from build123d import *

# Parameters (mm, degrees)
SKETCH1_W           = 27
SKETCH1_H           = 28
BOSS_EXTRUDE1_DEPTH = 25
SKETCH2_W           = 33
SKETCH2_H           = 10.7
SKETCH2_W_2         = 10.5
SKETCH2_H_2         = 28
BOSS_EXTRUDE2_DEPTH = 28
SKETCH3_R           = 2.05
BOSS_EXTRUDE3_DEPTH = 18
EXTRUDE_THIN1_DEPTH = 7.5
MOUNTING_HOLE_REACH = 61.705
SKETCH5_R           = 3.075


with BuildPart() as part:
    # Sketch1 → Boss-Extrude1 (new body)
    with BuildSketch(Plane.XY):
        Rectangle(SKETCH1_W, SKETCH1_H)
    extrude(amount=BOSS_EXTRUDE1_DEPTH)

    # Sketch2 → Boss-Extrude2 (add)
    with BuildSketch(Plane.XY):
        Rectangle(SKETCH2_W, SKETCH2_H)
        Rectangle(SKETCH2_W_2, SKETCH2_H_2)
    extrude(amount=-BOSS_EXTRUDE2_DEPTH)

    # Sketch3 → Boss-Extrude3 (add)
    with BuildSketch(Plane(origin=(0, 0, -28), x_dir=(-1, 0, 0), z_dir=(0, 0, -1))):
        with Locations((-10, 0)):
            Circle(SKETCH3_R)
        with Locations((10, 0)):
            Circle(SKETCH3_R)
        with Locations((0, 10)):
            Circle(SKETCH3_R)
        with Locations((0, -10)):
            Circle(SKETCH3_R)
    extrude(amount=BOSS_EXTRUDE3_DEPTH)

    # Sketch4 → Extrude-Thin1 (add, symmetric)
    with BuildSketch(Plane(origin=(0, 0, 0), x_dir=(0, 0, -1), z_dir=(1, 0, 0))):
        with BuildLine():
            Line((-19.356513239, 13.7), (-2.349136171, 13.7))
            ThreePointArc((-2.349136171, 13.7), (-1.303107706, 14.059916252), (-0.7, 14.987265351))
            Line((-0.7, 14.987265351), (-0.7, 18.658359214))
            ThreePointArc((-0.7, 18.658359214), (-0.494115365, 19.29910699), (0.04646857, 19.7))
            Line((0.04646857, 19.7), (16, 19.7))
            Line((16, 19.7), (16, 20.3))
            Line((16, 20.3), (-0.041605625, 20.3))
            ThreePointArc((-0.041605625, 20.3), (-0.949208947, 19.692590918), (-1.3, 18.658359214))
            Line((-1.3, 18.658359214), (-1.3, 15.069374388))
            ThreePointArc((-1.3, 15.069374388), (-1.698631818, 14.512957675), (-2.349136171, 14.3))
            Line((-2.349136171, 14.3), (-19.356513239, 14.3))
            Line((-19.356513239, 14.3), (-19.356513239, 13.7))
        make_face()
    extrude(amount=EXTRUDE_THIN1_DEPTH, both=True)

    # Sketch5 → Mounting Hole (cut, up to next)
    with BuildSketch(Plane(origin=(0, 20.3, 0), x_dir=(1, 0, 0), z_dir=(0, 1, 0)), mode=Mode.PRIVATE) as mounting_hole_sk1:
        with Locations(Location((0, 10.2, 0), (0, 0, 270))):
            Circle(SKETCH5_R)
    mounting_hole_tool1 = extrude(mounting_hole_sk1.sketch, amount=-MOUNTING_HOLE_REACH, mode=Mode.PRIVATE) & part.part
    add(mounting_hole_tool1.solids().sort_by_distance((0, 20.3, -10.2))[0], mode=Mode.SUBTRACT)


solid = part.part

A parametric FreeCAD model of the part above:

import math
import FreeCAD as App
import Part
import Sketcher
from FreeCAD import Vector


def add_polygon(sketch, points):
    """Adds a closed chain of lines whose ends are joined by coincident constraints."""
    first, n = sketch.GeometryCount, len(points)
    for a, b in zip(points, points[1:] + points[:1]):
        sketch.addGeometry(Part.LineSegment(App.Vector(*a, 0), App.Vector(*b, 0)), False)
    for i in range(n):
        sketch.addConstraint(Sketcher.Constraint("Coincident", first + i, 2, first + (i + 1) % n, 1))

doc = App.newDocument("Part")
params = doc.addObject("Spreadsheet::Sheet", "Params")
for row, (alias, value) in enumerate([
    ("sketch1_width", "27 mm"),
    ("sketch1_height", "28 mm"),
    ("pad1_length", "25 mm"),
    ("sketch2_width", "10.5 mm"),
    ("sketch2_height", "10.7 mm"),
    ("pad2_length", "28 mm"),
    ("sketch3_diameter", "4.1 mm"),
    ("pad3_length", "18 mm"),
    ("sketch4_radius", "1.7 mm"),
    ("sketch4_radius2", "1.1 mm"),
    ("pad4_length", "15 mm"),
    ("sketch5_diameter", "6.15 mm"),
], start=1):
    params.set(f"A{row}", alias)
    params.set(f"B{row}", "=" + value)
    params.setAlias(f"B{row}", alias)

body = doc.addObject("PartDesign::Body", "Body")

# Sketch on XY plane
sketch1 = body.newObject("Sketcher::SketchObject", "Sketch")
sketch1.AttachmentSupport = (doc.getObject("XY_Plane"), [""])
sketch1.MapMode = "FlatFace"
add_polygon(sketch1, [(-14, 14), (-14, -14), (14, -14), (14, 14)])  # lines 0-3
sketch1.addConstraint(Sketcher.Constraint("Vertical", 0))
sketch1.addConstraint(Sketcher.Constraint("Horizontal", 1))
sketch1.addConstraint(Sketcher.Constraint("Vertical", 2))
sketch1.addConstraint(Sketcher.Constraint("Horizontal", 3))
sketch1.addConstraint(Sketcher.Constraint("Symmetric", 0, 2, 2, 2, -1, 1))
sketch1.addConstraint(Sketcher.Constraint("DistanceX", 1, 1, 1, 2, 27.0))
sketch1.addConstraint(Sketcher.Constraint("DistanceY", 0, 2, 0, 1, 28.0))
sketch1.setExpression("Constraints[9]", "Params.sketch1_width")
sketch1.setExpression("Constraints[10]", "Params.sketch1_height")
pad1 = body.newObject("PartDesign::Pad", "Pad")
pad1.Profile = sketch1
pad1.setExpression("Length", "Params.pad1_length")

# Sketch on XY plane
sketch2 = body.newObject("Sketcher::SketchObject", "Sketch001")
sketch2.AttachmentSupport = (doc.getObject("XY_Plane"), [""])
sketch2.MapMode = "FlatFace"
add_polygon(sketch2, [(-16, 5), (-16, -5), (-5, -5), (-5, -14), (5, -14), (5, -5), (16, -5), (16, 5), (5, 5), (5, 14), (-5, 14), (-5, 5)])  # lines 0-11
sketch2.addConstraint(Sketcher.Constraint("Vertical", 0))
sketch2.addConstraint(Sketcher.Constraint("Horizontal", 1))
sketch2.addConstraint(Sketcher.Constraint("Vertical", 2))
sketch2.addConstraint(Sketcher.Constraint("Horizontal", 3))
sketch2.addConstraint(Sketcher.Constraint("Vertical", 4))
sketch2.addConstraint(Sketcher.Constraint("Horizontal", 5))
sketch2.addConstraint(Sketcher.Constraint("Vertical", 6))
sketch2.addConstraint(Sketcher.Constraint("Horizontal", 7))
sketch2.addConstraint(Sketcher.Constraint("Vertical", 8))
sketch2.addConstraint(Sketcher.Constraint("Horizontal", 9))
sketch2.addConstraint(Sketcher.Constraint("Vertical", 10))
sketch2.addConstraint(Sketcher.Constraint("Horizontal", 11))
sketch2.addConstraint(Sketcher.Constraint("Symmetric", 0, 2, 6, 2, -1, 1))
sketch2.addConstraint(Sketcher.Constraint("Symmetric", 2, 2, 8, 2, -1, 1))
sketch2.addConstraint(Sketcher.Constraint("Symmetric", 4, 2, 10, 2, -1, 1))
sketch2.addConstraint(Sketcher.Constraint("Symmetric", 1, 2, 4, 2, -2))
sketch2.addConstraint(Sketcher.Constraint("DistanceX", 3, 1, 3, 2, 10.5))
sketch2.addConstraint(Sketcher.Constraint("DistanceY", 0, 2, 0, 1, 10.7))
sketch2.addConstraint(Sketcher.Constraint("DistanceY", 2, 2, -1, 1, 14.0))
sketch2.addConstraint(Sketcher.Constraint("DistanceX", 0, 2, 5, 2, 33.0))
sketch2.setExpression("Constraints[28]", "Params.sketch2_width")
sketch2.setExpression("Constraints[29]", "Params.sketch2_height")
pad2 = body.newObject("PartDesign::Pad", "Pad001")
pad2.Profile = sketch2
pad2.setExpression("Length", "Params.pad2_length")
pad2.Reversed = True

# Sketch on XY plane
sketch3 = body.newObject("Sketcher::SketchObject", "Sketch002")
sketch3.AttachmentSupport = (doc.getObject("XY_Plane"), [""])
sketch3.MapMode = "FlatFace"
sketch3.AttachmentOffset = App.Placement(Vector(0, 0, -28), App.Rotation())
sketch3.addGeometry(Part.Circle(Vector(10, 0, 0), Vector(0, 0, 1), 2), False)
sketch3.addGeometry(Part.Circle(Vector(-10, 0, 0), Vector(0, 0, 1), 2), False)
sketch3.addGeometry(Part.Circle(Vector(0, 10, 0), Vector(0, 0, 1), 2), False)
sketch3.addGeometry(Part.Circle(Vector(0, -10, 0), Vector(0, 0, 1), 2), False)
sketch3.addConstraint(Sketcher.Constraint("Equal", 0, 1))
sketch3.addConstraint(Sketcher.Constraint("Equal", 1, 2))
sketch3.addConstraint(Sketcher.Constraint("Equal", 2, 3))
sketch3.addConstraint(Sketcher.Constraint("Symmetric", 0, 3, 1, 3, -1, 1))
sketch3.addConstraint(Sketcher.Constraint("Symmetric", 2, 3, 3, 3, -1, 1))
sketch3.addConstraint(Sketcher.Constraint("PointOnObject", 0, 3, -1))
sketch3.addConstraint(Sketcher.Constraint("PointOnObject", 2, 3, -2))
sketch3.addConstraint(Sketcher.Constraint("Diameter", 0, 4.1))
sketch3.addConstraint(Sketcher.Constraint("DistanceX", -1, 1, 0, 3, 10.0))
sketch3.addConstraint(Sketcher.Constraint("DistanceY", -1, 1, 2, 3, 10.0))
sketch3.setExpression("Constraints[7]", "Params.sketch3_diameter")
pad3 = body.newObject("PartDesign::Pad", "Pad002")
pad3.Profile = sketch3
pad3.setExpression("Length", "Params.pad3_length")
pad3.Reversed = True

# Sketch on YZ plane
sketch4 = body.newObject("Sketcher::SketchObject", "Sketch003")
sketch4.AttachmentSupport = (doc.getObject("YZ_Plane"), [""])
sketch4.MapMode = "FlatFace"
sketch4.addGeometry(Part.LineSegment(Vector(13.7, 19.4, 0), Vector(13.7, 2.3, 0)), False)
sketch4.addGeometry(Part.ArcOfCircle(Part.Circle(Vector(15.4, 2.3, 0), Vector(0, 0, 1), 1.7), math.radians(180), math.radians(256)), False)
sketch4.addGeometry(Part.LineSegment(Vector(15, 0.7, 0), Vector(18.7, 0.7, 0)), False)
sketch4.addGeometry(Part.ArcOfCircle(Part.Circle(Vector(18.7, -0.4, 0), Vector(0, 0, 1), 1.1), math.radians(19), math.radians(90)), False)
sketch4.addGeometry(Part.LineSegment(Vector(19.7, 0, 0), Vector(19.7, -16, 0)), False)
sketch4.addGeometry(Part.LineSegment(Vector(19.7, -16, 0), Vector(20.3, -16, 0)), False)
sketch4.addGeometry(Part.LineSegment(Vector(20.3, -16, 0), Vector(20.3, 0, 0)), False)
sketch4.addGeometry(Part.ArcOfCircle(Part.Circle(Vector(18.7, -0.4, 0), Vector(0, 0, 1), 1.7), math.radians(15), math.radians(90)), False)
sketch4.addGeometry(Part.LineSegment(Vector(18.7, 1.3, 0), Vector(15.1, 1.3, 0)), False)
sketch4.addGeometry(Part.ArcOfCircle(Part.Circle(Vector(15.4, 2.3, 0), Vector(0, 0, 1), 1.1), math.radians(-180), math.radians(-107)), False)
sketch4.addGeometry(Part.LineSegment(Vector(14.3, 2.3, 0), Vector(14.3, 19.4, 0)), False)
sketch4.addGeometry(Part.LineSegment(Vector(14.3, 19.4, 0), Vector(13.7, 19.4, 0)), False)
sketch4.addConstraint(Sketcher.Constraint("Tangent", 0, 2, 1, 1))
sketch4.addConstraint(Sketcher.Constraint("Coincident", 1, 2, 2, 1))
sketch4.addConstraint(Sketcher.Constraint("Tangent", 2, 2, 3, 2))
sketch4.addConstraint(Sketcher.Constraint("Coincident", 3, 1, 4, 1))
sketch4.addConstraint(Sketcher.Constraint("Coincident", 4, 2, 5, 1))
sketch4.addConstraint(Sketcher.Constraint("Coincident", 5, 2, 6, 1))
sketch4.addConstraint(Sketcher.Constraint("Coincident", 6, 2, 7, 1))
sketch4.addConstraint(Sketcher.Constraint("Tangent", 7, 2, 8, 1))
sketch4.addConstraint(Sketcher.Constraint("Coincident", 8, 2, 9, 2))
sketch4.addConstraint(Sketcher.Constraint("Tangent", 9, 1, 10, 1))
sketch4.addConstraint(Sketcher.Constraint("Coincident", 10, 2, 11, 1))
sketch4.addConstraint(Sketcher.Constraint("Coincident", 11, 2, 0, 1))
sketch4.addConstraint(Sketcher.Constraint("Vertical", 0))
sketch4.addConstraint(Sketcher.Constraint("Horizontal", 2))
sketch4.addConstraint(Sketcher.Constraint("Vertical", 4))
sketch4.addConstraint(Sketcher.Constraint("Horizontal", 5))
sketch4.addConstraint(Sketcher.Constraint("Vertical", 6))
sketch4.addConstraint(Sketcher.Constraint("Horizontal", 8))
sketch4.addConstraint(Sketcher.Constraint("Vertical", 10))
sketch4.addConstraint(Sketcher.Constraint("Horizontal", 11))
sketch4.addConstraint(Sketcher.Constraint("Coincident", 7, 3, 3, 3))
sketch4.addConstraint(Sketcher.Constraint("Coincident", 9, 3, 1, 3))
sketch4.addConstraint(Sketcher.Constraint("Equal", 1, 7))
sketch4.addConstraint(Sketcher.Constraint("Equal", 3, 9))
sketch4.addConstraint(Sketcher.Constraint("Equal", 5, 11))
sketch4.addConstraint(Sketcher.Constraint("Radius", 1, 1.7))
sketch4.addConstraint(Sketcher.Constraint("Radius", 3, 1.1))
sketch4.addConstraint(Sketcher.Constraint("DistanceY", 4, 2, -1, 1, 16.0))
sketch4.addConstraint(Sketcher.Constraint("DistanceX", -1, 1, 1, 3, 15.4))
sketch4.addConstraint(Sketcher.Constraint("DistanceY", 3, 3, -1, 1, 0.4))
sketch4.addConstraint(Sketcher.Constraint("DistanceX", -1, 1, 3, 1, 19.7))
sketch4.addConstraint(Sketcher.Constraint("DistanceY", 4, 2, 4, 1, 15.953531))
sketch4.addConstraint(Sketcher.Constraint("DistanceX", 2, 1, 2, 2, 3.671094))
sketch4.addConstraint(Sketcher.Constraint("DistanceY", 0, 2, 0, 1, 17.007377))
sketch4.setExpression("Constraints[25]", "Params.sketch4_radius")
sketch4.setExpression("Constraints[26]", "Params.sketch4_radius2")
pad4 = body.newObject("PartDesign::Pad", "Pad003")
pad4.Profile = sketch4
pad4.setExpression("Length", "Params.pad4_length")
pad4.Midplane = True

# Sketch on XZ plane
sketch5 = body.newObject("Sketcher::SketchObject", "Sketch004")
sketch5.AttachmentSupport = (doc.getObject("XZ_Plane"), [""])
sketch5.MapMode = "FlatFace"
sketch5.AttachmentOffset = App.Placement(Vector(0, 0, -20.3), App.Rotation())
sketch5.addGeometry(Part.Circle(Vector(0, -10.2, 0), Vector(0, 0, 1), 3.1), False)
sketch5.addConstraint(Sketcher.Constraint("PointOnObject", 0, 3, -2))
sketch5.addConstraint(Sketcher.Constraint("Diameter", 0, 6.15))
sketch5.addConstraint(Sketcher.Constraint("DistanceY", 0, 3, -1, 1, 10.2))
sketch5.setExpression("Constraints[1]", "Params.sketch5_diameter")
pocket1 = body.newObject("PartDesign::Pocket", "Pocket")
pocket1.Profile = sketch5
pocket1.Type = "UpToFirst"
pocket1.Reversed = True

doc.recompute()
